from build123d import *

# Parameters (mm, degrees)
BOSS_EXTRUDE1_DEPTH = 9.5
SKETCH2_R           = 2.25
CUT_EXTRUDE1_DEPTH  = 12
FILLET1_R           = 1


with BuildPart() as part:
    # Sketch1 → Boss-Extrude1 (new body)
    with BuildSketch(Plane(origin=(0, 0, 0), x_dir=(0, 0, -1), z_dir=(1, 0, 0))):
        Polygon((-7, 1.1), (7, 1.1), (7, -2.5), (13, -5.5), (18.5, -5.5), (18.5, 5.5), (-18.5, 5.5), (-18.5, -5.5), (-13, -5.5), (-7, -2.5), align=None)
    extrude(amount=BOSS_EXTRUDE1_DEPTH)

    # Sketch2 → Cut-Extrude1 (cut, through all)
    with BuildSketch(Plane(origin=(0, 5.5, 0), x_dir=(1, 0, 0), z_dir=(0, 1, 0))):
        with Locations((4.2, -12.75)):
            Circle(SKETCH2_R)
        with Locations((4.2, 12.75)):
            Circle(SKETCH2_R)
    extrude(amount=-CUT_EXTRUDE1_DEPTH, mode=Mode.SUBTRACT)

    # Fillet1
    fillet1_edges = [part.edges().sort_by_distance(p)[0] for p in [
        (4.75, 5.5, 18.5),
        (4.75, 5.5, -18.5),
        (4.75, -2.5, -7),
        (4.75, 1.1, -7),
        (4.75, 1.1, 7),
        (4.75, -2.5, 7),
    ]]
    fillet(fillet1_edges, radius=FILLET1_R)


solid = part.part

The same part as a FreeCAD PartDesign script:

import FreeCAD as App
import Part
import Sketcher
Q = App.Units.Quantity


def edges_at(feature, points):
    """Names of the edges that pass closest to the given points."""
    edges = feature.Shape.Edges
    near = lambda p: min(range(len(edges)), key=lambda i: edges[i].distToShape(Part.Vertex(*p))[0])
    return sorted({f"Edge{near(p) + 1}" for p in points})


def add_polygon(sketch, points):
    """Adds a closed chain of lines whose ends are joined by coincident constraints."""
    first, n = sketch.GeometryCount, len(points)
    for a, b in zip(points, points[1:] + points[:1]):
        sketch.addGeometry(Part.LineSegment(App.Vector(*a, 0), App.Vector(*b, 0)), False)
    for i in range(n):
        sketch.addConstraint(Sketcher.Constraint("Coincident", first + i, 2, first + (i + 1) % n, 1))

doc = App.newDocument("Part")
body = doc.addObject("PartDesign::Body", "Body")

sketch1 = doc.addObject("Sketcher::SketchObject", "Sketch")
body.addObject(sketch1)
sketch1.AttachmentSupport = (doc.YZ_Plane, [""])
sketch1.MapMode = "FlatFace"
add_polygon(sketch1, [(1.1, 7), (1.1, -7), (-2.5, -7), (-5.5, -13), (-5.5, -18.5), (5.5, -18.5), (5.5, 18.5), (-5.5, 18.5), (-5.5, 13), (-2.5, 7)])
sketch1.addConstraint(Sketcher.Constraint("Vertical", 0))
sketch1.addConstraint(Sketcher.Constraint("Horizontal", 1))
sketch1.addConstraint(Sketcher.Constraint("Vertical", 3))
sketch1.addConstraint(Sketcher.Constraint("Horizontal", 4))
sketch1.addConstraint(Sketcher.Constraint("Vertical", 5))
sketch1.addConstraint(Sketcher.Constraint("Horizontal", 6))
sketch1.addConstraint(Sketcher.Constraint("Vertical", 7))
sketch1.addConstraint(Sketcher.Constraint("Horizontal", 9))
sketch1.addConstraint(Sketcher.Constraint("Symmetric", 3, 2, 5, 2, -1, 1))
sketch1.addConstraint(Sketcher.Constraint("Symmetric", 2, 2, 7, 2, -1))
sketch1.addConstraint(Sketcher.Constraint("Symmetric", 1, 2, 8, 2, -1))
sketch1.addConstraint(Sketcher.Constraint("DistanceX", 4, 1, 4, 2, Q("11 mm")))
sketch1.addConstraint(Sketcher.Constraint("DistanceY", 0, 2, 0, 1, Q("14 mm")))
sketch1.addConstraint(Sketcher.Constraint("DistanceY", 5, 1, 5, 2, Q("37 mm")))
sketch1.addConstraint(Sketcher.Constraint("DistanceX", 1, 2, 1, 1, Q("3.6 mm")))
sketch1.addConstraint(Sketcher.Constraint("DistanceY", 3, 2, 3, 1, Q("5.5 mm")))
sketch1.addConstraint(Sketcher.Constraint("DistanceX", 2, 2, 1, 2, Q("3 mm")))
pad1 = doc.addObject("PartDesign::Pad", "Pad")
body.addObject(pad1)
pad1.Profile = sketch1
pad1.Length = 9.5

sketch2 = doc.addObject("Sketcher::SketchObject", "Sketch001")
body.addObject(sketch2)
sketch2.AttachmentSupport = (doc.XZ_Plane, [""])
sketch2.MapMode = "FlatFace"
sketch2.AttachmentOffset = App.Placement(App.Vector(0, 0, -5.5), App.Rotation())
sketch2.addGeometry(Part.Circle(App.Vector(4.2, 12.8, 0), App.Vector(0, 0, 1), 2.2), False)
sketch2.addGeometry(Part.Circle(App.Vector(4.2, -12.8, 0), App.Vector(0, 0, 1), 2.2), False)
sketch2.addConstraint(Sketcher.Constraint("Equal", 0, 1))
sketch2.addConstraint(Sketcher.Constraint("Symmetric", 0, 3, 1, 3, -1))
sketch2.addConstraint(Sketcher.Constraint("Diameter", 0, Q("4.5 mm")))
sketch2.addConstraint(Sketcher.Constraint("DistanceX", -1, 1, 0, 3, Q("4.2 mm")))
sketch2.addConstraint(Sketcher.Constraint("DistanceY", 1, 3, 0, 3, Q("25.5 mm")))
pocket1 = doc.addObject("PartDesign::Pocket", "Pocket")
body.addObject(pocket1)
pocket1.Profile = sketch2
pocket1.Type = "ThroughAll"
pocket1.Reversed = True
doc.recompute()

fillet = doc.addObject("PartDesign::Fillet", "Fillet")
body.addObject(fillet)
fillet.Base = (pocket1, edges_at(pocket1, [
    (4.75, 5.5, 18.5),
    (4.75, 5.5, -18.5),
    (4.75, -2.5, -7),
    (4.75, 1.1, -7),
    (4.75, 1.1, 7),
    (4.75, -2.5, 7),
]))
fillet.Radius = 1

doc.recompute()
